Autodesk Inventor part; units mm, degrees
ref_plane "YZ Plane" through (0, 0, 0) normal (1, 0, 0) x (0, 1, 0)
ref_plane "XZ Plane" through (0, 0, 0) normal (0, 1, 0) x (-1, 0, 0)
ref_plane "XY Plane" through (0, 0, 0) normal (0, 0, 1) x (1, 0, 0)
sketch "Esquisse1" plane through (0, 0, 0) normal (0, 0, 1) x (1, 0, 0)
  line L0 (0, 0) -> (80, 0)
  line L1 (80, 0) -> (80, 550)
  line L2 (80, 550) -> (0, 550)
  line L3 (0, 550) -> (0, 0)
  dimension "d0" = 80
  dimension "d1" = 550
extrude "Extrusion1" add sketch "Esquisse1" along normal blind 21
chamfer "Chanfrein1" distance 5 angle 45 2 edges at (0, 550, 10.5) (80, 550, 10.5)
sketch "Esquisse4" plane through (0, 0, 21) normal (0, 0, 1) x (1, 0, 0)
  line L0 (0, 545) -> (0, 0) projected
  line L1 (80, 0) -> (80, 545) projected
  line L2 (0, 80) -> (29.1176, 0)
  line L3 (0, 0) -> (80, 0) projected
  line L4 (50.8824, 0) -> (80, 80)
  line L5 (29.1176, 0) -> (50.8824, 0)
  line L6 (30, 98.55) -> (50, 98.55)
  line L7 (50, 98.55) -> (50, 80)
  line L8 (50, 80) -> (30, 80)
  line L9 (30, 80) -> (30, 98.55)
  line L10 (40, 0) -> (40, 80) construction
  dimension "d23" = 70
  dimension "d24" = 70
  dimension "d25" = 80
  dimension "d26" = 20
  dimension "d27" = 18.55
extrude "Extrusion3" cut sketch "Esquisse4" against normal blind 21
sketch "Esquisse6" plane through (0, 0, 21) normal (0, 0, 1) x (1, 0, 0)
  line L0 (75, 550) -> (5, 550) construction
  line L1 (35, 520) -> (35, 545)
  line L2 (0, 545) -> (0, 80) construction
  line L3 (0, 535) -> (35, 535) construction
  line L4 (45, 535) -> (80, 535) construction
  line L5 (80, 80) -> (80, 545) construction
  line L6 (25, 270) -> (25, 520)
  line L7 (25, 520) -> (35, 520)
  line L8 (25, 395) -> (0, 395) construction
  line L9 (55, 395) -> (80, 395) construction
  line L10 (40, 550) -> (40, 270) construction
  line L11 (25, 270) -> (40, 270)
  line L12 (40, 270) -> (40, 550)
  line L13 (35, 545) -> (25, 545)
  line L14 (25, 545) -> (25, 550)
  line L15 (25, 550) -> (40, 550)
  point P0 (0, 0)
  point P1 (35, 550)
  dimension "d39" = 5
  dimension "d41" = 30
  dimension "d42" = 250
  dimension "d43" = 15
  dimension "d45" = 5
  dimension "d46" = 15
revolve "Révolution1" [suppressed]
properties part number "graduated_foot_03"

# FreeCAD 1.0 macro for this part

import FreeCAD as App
import Part
import Sketcher
from FreeCAD import Vector
Q = App.Units.Quantity


def edges_at(feature, points):
    """Names of the edges that pass closest to the given points."""
    edges = feature.Shape.Edges
    near = lambda p: min(range(len(edges)), key=lambda i: edges[i].distToShape(Part.Vertex(*p))[0])
    return sorted({f"Edge{near(p) + 1}" for p in points})

doc = App.newDocument("Part")
body = doc.addObject("PartDesign::Body", "Body")

sketch1 = body.newObject("Sketcher::SketchObject", "Sketch")
sketch1.AttachmentSupport = (doc.getObject("XY_Plane"), [""])
sketch1.MapMode = "FlatFace"
sketch1.addGeometry([
    Part.LineSegment(Vector(0, 550, 0), Vector(0, 0, 0)),
    Part.LineSegment(Vector(0, 0, 0), Vector(80, 0, 0)),
    Part.LineSegment(Vector(80, 0, 0), Vector(80, 550, 0)),
    Part.LineSegment(Vector(80, 550, 0), Vector(0, 550, 0)),
], False)
sketch1.addConstraint([
    Sketcher.Constraint("Coincident", 0, 2, 1, 1),
    Sketcher.Constraint("Coincident", 1, 2, 2, 1),
    Sketcher.Constraint("Coincident", 2, 2, 3, 1),
    Sketcher.Constraint("Coincident", 3, 2, 0, 1),
    Sketcher.Constraint("Vertical", 0),
    Sketcher.Constraint("Horizontal", 1),
    Sketcher.Constraint("Vertical", 2),
    Sketcher.Constraint("Horizontal", 3),
    Sketcher.Constraint("Coincident", 0, 2, -1, 1),
    Sketcher.Constraint("DistanceX", 1, 1, 1, 2, Q("80 mm")),
    Sketcher.Constraint("DistanceY", 0, 2, 0, 1, Q("550 mm")),
])
pad1 = body.newObject("PartDesign::Pad", "Pad")
pad1.Profile = sketch1
pad1.Length = 21
doc.recompute()

chamfer = body.newObject("PartDesign::Chamfer", "Chamfer")
chamfer.Base = (pad1, edges_at(pad1, [(0, 550, 10.5), (80, 550, 10.5)]))
chamfer.Size = 5

sketch2 = body.newObject("Sketcher::SketchObject", "Sketch001")
sketch2.AttachmentSupport = (doc.getObject("XY_Plane"), [""])
sketch2.MapMode = "FlatFace"
sketch2.AttachmentOffset = App.Placement(Vector(0, 0, 21), App.Rotation())
sketch2.addGeometry([
    Part.LineSegment(Vector(29, 0, 0), Vector(0, 80, 0)),
    Part.LineSegment(Vector(0, 80, 0), Vector(0, 0, 0)),
    Part.LineSegment(Vector(0, 0, 0), Vector(29, 0, 0)),
    Part.LineSegment(Vector(80, 80, 0), Vector(51, 0, 0)),
    Part.LineSegment(Vector(51, 0, 0), Vector(80, 0, 0)),
    Part.LineSegment(Vector(80, 0, 0), Vector(80, 80, 0)),
    Part.LineSegment(Vector(50, 99, 0), Vector(30, 99, 0)),
    Part.LineSegment(Vector(30, 99, 0), Vector(30, 80, 0)),
    Part.LineSegment(Vector(30, 80, 0), Vector(50, 80, 0)),
    Part.LineSegment(Vector(50, 80, 0), Vector(50, 99, 0)),
], False)
sketch2.addConstraint([
    Sketcher.Constraint("Coincident", 0, 2, 1, 1),
    Sketcher.Constraint("Coincident", 1, 2, 2, 1),
    Sketcher.Constraint("Coincident", 2, 2, 0, 1),
    Sketcher.Constraint("Coincident", 3, 2, 4, 1),
    Sketcher.Constraint("Coincident", 4, 2, 5, 1),
    Sketcher.Constraint("Coincident", 5, 2, 3, 1),
    Sketcher.Constraint("Coincident", 6, 2, 7, 1),
    Sketcher.Constraint("Coincident", 7, 2, 8, 1),
    Sketcher.Constraint("Coincident", 8, 2, 9, 1),
    Sketcher.Constraint("Coincident", 9, 2, 6, 1),
    Sketcher.Constraint("Vertical", 1),
    Sketcher.Constraint("Horizontal", 2),
    Sketcher.Constraint("Horizontal", 4),
    Sketcher.Constraint("Vertical", 5),
    Sketcher.Constraint("Horizontal", 6),
    Sketcher.Constraint("Vertical", 7),
    Sketcher.Constraint("Horizontal", 8),
    Sketcher.Constraint("Vertical", 9),
    Sketcher.Constraint("Coincident", 1, 2, -1, 1),
    Sketcher.Constraint("PointOnObject", 3, 2, -1),
    Sketcher.Constraint("Horizontal", 0, 2, 5, 2),
    Sketcher.Constraint("Horizontal", 5, 2, 7, 2),
    Sketcher.Constraint("Equal", 2, 4),
    Sketcher.Constraint("DistanceX", 6, 2, 6, 1, Q("20 mm")),
    Sketcher.Constraint("DistanceY", 1, 2, 1, 1, Q("80 mm")),
    Sketcher.Constraint("DistanceX", -1, 1, 4, 2, Q("80 mm")),
    Sketcher.Constraint("DistanceY", 7, 2, 7, 1, Q("18.55 mm")),
    Sketcher.Constraint("Angle", 0, Q("110 deg")),
    Sketcher.Constraint("DistanceX", -1, 1, 6, 2, Q("30 mm")),
])
pocket1 = body.newObject("PartDesign::Pocket", "Pocket")
pocket1.Profile = sketch2
pocket1.Length = 21

doc.recompute()
